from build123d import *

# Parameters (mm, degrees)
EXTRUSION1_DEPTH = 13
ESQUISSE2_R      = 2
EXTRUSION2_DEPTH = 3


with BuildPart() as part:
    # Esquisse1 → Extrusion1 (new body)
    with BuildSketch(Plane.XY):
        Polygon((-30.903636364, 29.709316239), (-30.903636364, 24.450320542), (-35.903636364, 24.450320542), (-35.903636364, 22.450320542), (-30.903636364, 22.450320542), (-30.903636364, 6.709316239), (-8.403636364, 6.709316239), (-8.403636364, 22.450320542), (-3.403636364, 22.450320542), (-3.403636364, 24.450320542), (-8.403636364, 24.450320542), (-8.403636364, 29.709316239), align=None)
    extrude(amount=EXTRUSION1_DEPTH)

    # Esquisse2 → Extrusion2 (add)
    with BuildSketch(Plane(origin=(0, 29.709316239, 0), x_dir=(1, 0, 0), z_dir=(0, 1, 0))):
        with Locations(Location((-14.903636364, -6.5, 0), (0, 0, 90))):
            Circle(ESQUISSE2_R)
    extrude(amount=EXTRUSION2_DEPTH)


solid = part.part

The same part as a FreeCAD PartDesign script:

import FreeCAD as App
import Part
import Sketcher

V = App.Vector

doc = App.newDocument("Part")
params = doc.addObject("Spreadsheet::Sheet", "Params")
for row, (alias, value) in enumerate([
    ("sketch1_width", "5 mm"),
    ("sketch1_height", "2 mm"),
    ("sketch1_width2", "22.5 mm"),
    ("pad1_length", "13 mm"),
    ("sketch2_diameter", "4 mm"),
    ("pad2_length", "3 mm"),
], start=1):
    params.set(f"A{row}", alias)
    params.set(f"B{row}", "=" + value)
    params.setAlias(f"B{row}", alias)

body = doc.addObject("PartDesign::Body", "Body")

# Sketch on XY plane
sketch1 = body.newObject("Sketcher::SketchObject", "Sketch")
sketch1.AttachmentSupport = (doc.getObject("XY_Plane"), [""])
sketch1.MapMode = "FlatFace"
sketch1.addGeometry(Part.LineSegment(V(-30.9, 29.7, 0), V(-30.9, 24.5, 0)), False)
sketch1.addGeometry(Part.LineSegment(V(-30.9, 24.5, 0), V(-35.9, 24.5, 0)), False)
sketch1.addGeometry(Part.LineSegment(V(-35.9, 24.5, 0), V(-35.9, 22.5, 0)), False)
sketch1.addGeometry(Part.LineSegment(V(-35.9, 22.5, 0), V(-30.9, 22.5, 0)), False)
sketch1.addGeometry(Part.LineSegment(V(-30.9, 22.5, 0), V(-30.9, 6.7, 0)), False)
sketch1.addGeometry(Part.LineSegment(V(-30.9, 6.7, 0), V(-8.4, 6.7, 0)), False)
sketch1.addGeometry(Part.LineSegment(V(-8.4, 6.7, 0), V(-8.4, 22.5, 0)), False)
sketch1.addGeometry(Part.LineSegment(V(-8.4, 22.5, 0), V(-3.4, 22.5, 0)), False)
sketch1.addGeometry(Part.LineSegment(V(-3.4, 22.5, 0), V(-3.4, 24.5, 0)), False)
sketch1.addGeometry(Part.LineSegment(V(-3.4, 24.5, 0), V(-8.4, 24.5, 0)), False)
sketch1.addGeometry(Part.LineSegment(V(-8.4, 24.5, 0), V(-8.4, 29.7, 0)), False)
sketch1.addGeometry(Part.LineSegment(V(-8.4, 29.7, 0), V(-30.9, 29.7, 0)), False)
sketch1.addConstraint(Sketcher.Constraint("Coincident", 0, 2, 1, 1))
sketch1.addConstraint(Sketcher.Constraint("Coincident", 1, 2, 2, 1))
sketch1.addConstraint(Sketcher.Constraint("Coincident", 2, 2, 3, 1))
sketch1.addConstraint(Sketcher.Constraint("Coincident", 3, 2, 4, 1))
sketch1.addConstraint(Sketcher.Constraint("Coincident", 4, 2, 5, 1))
sketch1.addConstraint(Sketcher.Constraint("Coincident", 5, 2, 6, 1))
sketch1.addConstraint(Sketcher.Constraint("Coincident", 6, 2, 7, 1))
sketch1.addConstraint(Sketcher.Constraint("Coincident", 7, 2, 8, 1))
sketch1.addConstraint(Sketcher.Constraint("Coincident", 8, 2, 9, 1))
sketch1.addConstraint(Sketcher.Constraint("Coincident", 9, 2, 10, 1))
sketch1.addConstraint(Sketcher.Constraint("Coincident", 10, 2, 11, 1))
sketch1.addConstraint(Sketcher.Constraint("Coincident", 11, 2, 0, 1))
sketch1.addConstraint(Sketcher.Constraint("Vertical", 0))
sketch1.addConstraint(Sketcher.Constraint("Horizontal", 1))
sketch1.addConstraint(Sketcher.Constraint("Vertical", 2))
sketch1.addConstraint(Sketcher.Constraint("Horizontal", 3))
sketch1.addConstraint(Sketcher.Constraint("Vertical", 4))
sketch1.addConstraint(Sketcher.Constraint("Horizontal", 5))
sketch1.addConstraint(Sketcher.Constraint("Vertical", 6))
sketch1.addConstraint(Sketcher.Constraint("Horizontal", 7))
sketch1.addConstraint(Sketcher.Constraint("Vertical", 8))
sketch1.addConstraint(Sketcher.Constraint("Horizontal", 9))
sketch1.addConstraint(Sketcher.Constraint("Vertical", 10))
sketch1.addConstraint(Sketcher.Constraint("Horizontal", 11))
sketch1.addConstraint(Sketcher.Constraint("Horizontal", 3, 2, 6, 2))
sketch1.addConstraint(Sketcher.Constraint("Horizontal", 1, 2, 8, 2))
sketch1.addConstraint(Sketcher.Constraint("Vertical", 0, 2, 3, 2))
sketch1.addConstraint(Sketcher.Constraint("Vertical", 6, 2, 9, 2))
sketch1.addConstraint(Sketcher.Constraint("Equal", 3, 7))
sketch1.addConstraint(Sketcher.Constraint("DistanceX", 1, 2, 1, 1, 5.0))
sketch1.addConstraint(Sketcher.Constraint("DistanceY", 2, 2, 2, 1, 2.0))
sketch1.addConstraint(Sketcher.Constraint("DistanceX", 5, 1, 5, 2, 22.5))
sketch1.addConstraint(Sketcher.Constraint("DistanceY", 5, 2, 10, 2, 23.0))
sketch1.addConstraint(Sketcher.Constraint("DistanceY", 0, 2, 0, 1, 5.258996))
sketch1.addConstraint(Sketcher.Constraint("DistanceY", -1, 1, 0, 2, 24.450321))
sketch1.addConstraint(Sketcher.Constraint("DistanceX", 0, 2, -1, 1, 30.903636))
sketch1.setExpression("Constraints[29]", "Params.sketch1_width")
sketch1.setExpression("Constraints[30]", "Params.sketch1_height")
sketch1.setExpression("Constraints[31]", "Params.sketch1_width2")
pad1 = body.newObject("PartDesign::Pad", "Pad")
pad1.Profile = sketch1
pad1.setExpression("Length", "Params.pad1_length")

# Sketch on XZ plane
sketch2 = body.newObject("Sketcher::SketchObject", "Sketch001")
sketch2.AttachmentSupport = (doc.getObject("XZ_Plane"), [""])
sketch2.MapMode = "FlatFace"
sketch2.AttachmentOffset = App.Placement(V(0, 0, -29.709316), App.Rotation())
sketch2.addGeometry(Part.Circle(V(-14.9, 6.5, 0), V(0, 0, 1), 2), False)
sketch2.addConstraint(Sketcher.Constraint("Diameter", 0, 4.0))
sketch2.addConstraint(Sketcher.Constraint("DistanceY", -1, 1, 0, 3, 6.5))
sketch2.addConstraint(Sketcher.Constraint("DistanceX", 0, 3, -1, 1, 14.903636))
sketch2.setExpression("Constraints[0]", "Params.sketch2_diameter")
pad2 = body.newObject("PartDesign::Pad", "Pad001")
pad2.Profile = sketch2
pad2.setExpression("Length", "Params.pad2_length")
pad2.Reversed = True

doc.recompute()
